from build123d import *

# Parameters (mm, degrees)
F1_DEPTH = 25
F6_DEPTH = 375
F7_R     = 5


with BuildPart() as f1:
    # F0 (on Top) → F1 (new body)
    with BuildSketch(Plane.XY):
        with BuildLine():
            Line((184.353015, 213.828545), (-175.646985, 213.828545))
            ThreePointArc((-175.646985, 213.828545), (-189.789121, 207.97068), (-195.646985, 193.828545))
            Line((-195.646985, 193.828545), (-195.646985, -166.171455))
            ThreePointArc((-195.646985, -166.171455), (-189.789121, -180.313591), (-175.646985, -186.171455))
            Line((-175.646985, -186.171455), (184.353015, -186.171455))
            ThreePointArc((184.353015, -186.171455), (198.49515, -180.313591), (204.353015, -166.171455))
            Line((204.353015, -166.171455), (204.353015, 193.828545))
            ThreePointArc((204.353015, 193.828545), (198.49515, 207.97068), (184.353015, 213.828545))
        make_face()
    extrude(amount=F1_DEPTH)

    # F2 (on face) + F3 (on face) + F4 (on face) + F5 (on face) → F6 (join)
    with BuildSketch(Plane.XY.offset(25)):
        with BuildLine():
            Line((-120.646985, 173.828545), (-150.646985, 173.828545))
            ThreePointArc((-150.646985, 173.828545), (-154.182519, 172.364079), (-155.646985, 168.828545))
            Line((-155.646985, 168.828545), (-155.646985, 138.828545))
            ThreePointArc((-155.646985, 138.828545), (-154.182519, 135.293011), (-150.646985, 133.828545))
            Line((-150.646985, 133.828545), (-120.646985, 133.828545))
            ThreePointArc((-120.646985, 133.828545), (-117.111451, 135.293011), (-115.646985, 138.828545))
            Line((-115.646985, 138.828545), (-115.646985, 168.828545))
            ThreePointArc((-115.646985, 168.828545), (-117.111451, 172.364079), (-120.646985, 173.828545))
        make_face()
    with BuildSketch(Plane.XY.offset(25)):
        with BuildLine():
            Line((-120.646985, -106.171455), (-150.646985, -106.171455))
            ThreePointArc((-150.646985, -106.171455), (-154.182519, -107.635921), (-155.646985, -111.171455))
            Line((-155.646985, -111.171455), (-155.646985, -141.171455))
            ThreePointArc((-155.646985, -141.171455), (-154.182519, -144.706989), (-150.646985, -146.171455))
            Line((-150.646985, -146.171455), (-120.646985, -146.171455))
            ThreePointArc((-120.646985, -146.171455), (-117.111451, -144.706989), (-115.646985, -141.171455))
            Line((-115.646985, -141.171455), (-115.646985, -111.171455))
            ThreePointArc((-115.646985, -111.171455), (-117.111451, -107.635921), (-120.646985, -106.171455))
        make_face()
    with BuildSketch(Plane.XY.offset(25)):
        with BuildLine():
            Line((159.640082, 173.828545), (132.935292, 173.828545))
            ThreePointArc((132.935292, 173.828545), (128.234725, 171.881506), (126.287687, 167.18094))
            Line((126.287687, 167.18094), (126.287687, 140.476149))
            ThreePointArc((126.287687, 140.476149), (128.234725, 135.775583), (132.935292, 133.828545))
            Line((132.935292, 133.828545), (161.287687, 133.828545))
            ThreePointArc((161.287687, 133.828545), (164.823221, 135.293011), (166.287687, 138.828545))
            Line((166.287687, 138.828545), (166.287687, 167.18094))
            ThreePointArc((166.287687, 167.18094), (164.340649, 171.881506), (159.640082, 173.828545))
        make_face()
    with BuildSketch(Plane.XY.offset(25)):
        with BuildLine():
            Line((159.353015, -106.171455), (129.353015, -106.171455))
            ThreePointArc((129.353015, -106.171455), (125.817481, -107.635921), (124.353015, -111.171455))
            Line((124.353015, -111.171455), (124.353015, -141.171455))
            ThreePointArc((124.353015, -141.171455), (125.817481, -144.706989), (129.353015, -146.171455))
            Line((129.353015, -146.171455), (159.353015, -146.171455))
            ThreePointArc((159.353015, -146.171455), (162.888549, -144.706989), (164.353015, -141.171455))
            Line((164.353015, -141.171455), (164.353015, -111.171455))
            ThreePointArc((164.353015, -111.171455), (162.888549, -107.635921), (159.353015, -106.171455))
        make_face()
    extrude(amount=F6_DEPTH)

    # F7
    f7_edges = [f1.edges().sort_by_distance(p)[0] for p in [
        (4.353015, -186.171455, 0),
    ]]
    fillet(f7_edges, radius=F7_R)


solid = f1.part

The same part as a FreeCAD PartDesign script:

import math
import FreeCAD as App
import Part
import Sketcher


def edges_at(feature, points):
    """Names of the edges that pass closest to the given points."""
    edges = feature.Shape.Edges
    near = lambda p: min(range(len(edges)), key=lambda i: edges[i].distToShape(Part.Vertex(*p))[0])
    return sorted({f"Edge{near(p) + 1}" for p in points})

doc = App.newDocument("Part")
params = doc.addObject("Spreadsheet::Sheet", "Params")
for row, (alias, value) in enumerate([
    ("sketch1_radius", "20 mm"),
    ("sketch1_width", "360 mm"),
    ("pad1_length", "25 mm"),
    ("sketch2_radius", "5 mm"),
    ("sketch2_width", "30 mm"),
    ("pad2_length", "375 mm"),
    ("fillet_radius", "5 mm"),
], start=1):
    params.set(f"A{row}", alias)
    params.set(f"B{row}", "=" + value)
    params.setAlias(f"B{row}", alias)

body = doc.addObject("PartDesign::Body", "Body")

# Sketch on XY plane
sketch1 = body.newObject("Sketcher::SketchObject", "Sketch")
sketch1.AttachmentSupport = (doc.getObject("XY_Plane"), [""])
sketch1.MapMode = "FlatFace"
sketch1.addGeometry(Part.LineSegment(App.Vector(184.353015, 213.828545, 0), App.Vector(-175.646985, 213.828545, 0)), False)
sketch1.addGeometry(Part.ArcOfCircle(Part.Circle(App.Vector(-175.646985, 193.828545, 0), App.Vector(0, 0, 1), 20), math.radians(90.000001), math.radians(179.999999)), False)
sketch1.addGeometry(Part.LineSegment(App.Vector(-195.646985, 193.828545, 0), App.Vector(-195.646985, -166.171455, 0)), False)
sketch1.addGeometry(Part.ArcOfCircle(Part.Circle(App.Vector(-175.646986, -166.171456, 0), App.Vector(0, 0, 1), 19.999999), math.radians(179.999996), math.radians(270.000004)), False)
sketch1.addGeometry(Part.LineSegment(App.Vector(-175.646985, -186.171455, 0), App.Vector(184.353015, -186.171455, 0)), False)
sketch1.addGeometry(Part.ArcOfCircle(Part.Circle(App.Vector(184.353015, -166.171455, 0), App.Vector(0, 0, 1), 20), math.radians(-89.999999), math.radians(-0.000001)), False)
sketch1.addGeometry(Part.LineSegment(App.Vector(204.353015, -166.171455, 0), App.Vector(204.353015, 193.828545, 0)), False)
sketch1.addGeometry(Part.ArcOfCircle(Part.Circle(App.Vector(184.353013, 193.828543, 0), App.Vector(0, 0, 1), 20.000002), math.radians(0.000006), math.radians(89.999994)), False)
sketch1.addConstraint(Sketcher.Constraint("Tangent", 0, 2, 1, 1))
sketch1.addConstraint(Sketcher.Constraint("Tangent", 1, 2, 2, 1))
sketch1.addConstraint(Sketcher.Constraint("Tangent", 2, 2, 3, 1))
sketch1.addConstraint(Sketcher.Constraint("Tangent", 3, 2, 4, 1))
sketch1.addConstraint(Sketcher.Constraint("Tangent", 4, 2, 5, 1))
sketch1.addConstraint(Sketcher.Constraint("Tangent", 5, 2, 6, 1))
sketch1.addConstraint(Sketcher.Constraint("Tangent", 6, 2, 7, 1))
sketch1.addConstraint(Sketcher.Constraint("Tangent", 7, 2, 0, 1))
sketch1.addConstraint(Sketcher.Constraint("Horizontal", 0))
sketch1.addConstraint(Sketcher.Constraint("Vertical", 2))
sketch1.addConstraint(Sketcher.Constraint("Horizontal", 4))
sketch1.addConstraint(Sketcher.Constraint("Vertical", 6))
sketch1.addConstraint(Sketcher.Constraint("Equal", 1, 3))
sketch1.addConstraint(Sketcher.Constraint("Equal", 3, 5))
sketch1.addConstraint(Sketcher.Constraint("Equal", 5, 7))
sketch1.addConstraint(Sketcher.Constraint("Equal", 4, 2))
sketch1.addConstraint(Sketcher.Constraint("Radius", 1, 20.0))
sketch1.addConstraint(Sketcher.Constraint("DistanceX", 0, 2, 0, 1, 360.0))
sketch1.addConstraint(Sketcher.Constraint("DistanceX", 1, 3, -1, 1, 175.646985))
sketch1.addConstraint(Sketcher.Constraint("DistanceY", -1, 1, 1, 3, 193.828545))
sketch1.setExpression("Constraints[16]", "Params.sketch1_radius")
sketch1.setExpression("Constraints[17]", "Params.sketch1_width")
pad1 = body.newObject("PartDesign::Pad", "Pad")
pad1.Profile = sketch1
pad1.setExpression("Length", "Params.pad1_length")

# Sketch on XY plane
sketch2 = body.newObject("Sketcher::SketchObject", "Sketch001")
sketch2.AttachmentSupport = (doc.getObject("XY_Plane"), [""])
sketch2.MapMode = "FlatFace"
sketch2.AttachmentOffset = App.Placement(App.Vector(0, 0, 25), App.Rotation())
sketch2.addGeometry(Part.LineSegment(App.Vector(-120.646985, 173.828545, 0), App.Vector(-150.646985, 173.828545, 0)), False)
sketch2.addGeometry(Part.ArcOfCircle(Part.Circle(App.Vector(-150.646985, 168.828545, 0), App.Vector(0, 0, 1), 5), math.radians(89.999996), math.radians(180.000004)), False)
sketch2.addGeometry(Part.LineSegment(App.Vector(-155.646985, 168.828545, 0), App.Vector(-155.646985, 138.828545, 0)), False)
sketch2.addGeometry(Part.ArcOfCircle(Part.Circle(App.Vector(-150.646985, 138.828545, 0), App.Vector(0, 0, 1), 5), math.radians(179.999996), math.radians(270.000004)), False)
sketch2.addGeometry(Part.LineSegment(App.Vector(-150.646985, 133.828545, 0), App.Vector(-120.646985, 133.828545, 0)), False)
sketch2.addGeometry(Part.ArcOfCircle(Part.Circle(App.Vector(-120.646985, 138.828545, 0), App.Vector(0, 0, 1), 5), math.radians(-90.000004), math.radians(0.000004)), False)
sketch2.addGeometry(Part.LineSegment(App.Vector(-115.646985, 138.828545, 0), App.Vector(-115.646985, 168.828545, 0)), False)
sketch2.addGeometry(Part.ArcOfCircle(Part.Circle(App.Vector(-120.646985, 168.828545, 0), App.Vector(0, 0, 1), 5), math.radians(-0.000004), math.radians(90.000004)), False)
sketch2.addGeometry(Part.LineSegment(App.Vector(-120.646985, -106.171455, 0), App.Vector(-150.646985, -106.171455, 0)), False)
sketch2.addGeometry(Part.ArcOfCircle(Part.Circle(App.Vector(-150.646985, -111.171455, 0), App.Vector(0, 0, 1), 5), math.radians(89.999996), math.radians(180.000004)), False)
sketch2.addGeometry(Part.LineSegment(App.Vector(-155.646985, -111.171455, 0), App.Vector(-155.646985, -141.171455, 0)), False)
sketch2.addGeometry(Part.ArcOfCircle(Part.Circle(App.Vector(-150.646985, -141.171455, 0), App.Vector(0, 0, 1), 5), math.radians(179.999996), math.radians(270.000004)), False)
sketch2.addGeometry(Part.LineSegment(App.Vector(-150.646985, -146.171455, 0), App.Vector(-120.646985, -146.171455, 0)), False)
sketch2.addGeometry(Part.ArcOfCircle(Part.Circle(App.Vector(-120.646985, -141.171455, 0), App.Vector(0, 0, 1), 5), math.radians(-90.000004), math.radians(0.000004)), False)
sketch2.addGeometry(Part.LineSegment(App.Vector(-115.646985, -141.171455, 0), App.Vector(-115.646985, -111.171455, 0)), False)
sketch2.addGeometry(Part.ArcOfCircle(Part.Circle(App.Vector(-120.646985, -111.171455, 0), App.Vector(0, 0, 1), 5), math.radians(-0.000004), math.radians(90.000004)), False)
sketch2.addGeometry(Part.LineSegment(App.Vector(159.640082, 173.828545, 0), App.Vector(132.935292, 173.828545, 0)), False)
sketch2.addGeometry(Part.ArcOfCircle(Part.Circle(App.Vector(132.935292, 167.18094, 0), App.Vector(0, 0, 1), 6.647605), math.radians(90.000002), math.radians(179.999998)), False)
sketch2.addGeometry(Part.LineSegment(App.Vector(126.287687, 167.18094, 0), App.Vector(126.287687, 140.476149, 0)), False)
sketch2.addGeometry(Part.ArcOfCircle(Part.Circle(App.Vector(132.935291, 140.476149, 0), App.Vector(0, 0, 1), 6.647604), math.radians(179.999996), math.radians(270.000013)), False)
sketch2.addGeometry(Part.LineSegment(App.Vector(132.935292, 133.828545, 0), App.Vector(161.287687, 133.828545, 0)), False)
sketch2.addGeometry(Part.ArcOfCircle(Part.Circle(App.Vector(161.287687, 138.828545, 0), App.Vector(0, 0, 1), 5), math.radians(-90.000004), math.radians(0.000004)), False)
sketch2.addGeometry(Part.LineSegment(App.Vector(166.287687, 138.828545, 0), App.Vector(166.287687, 167.18094, 0)), False)
sketch2.addGeometry(Part.ArcOfCircle(Part.Circle(App.Vector(159.640082, 167.18094, 0), App.Vector(0, 0, 1), 6.647605), math.radians(0.000002), math.radians(89.999998)), False)
sketch2.addGeometry(Part.LineSegment(App.Vector(159.353015, -106.171455, 0), App.Vector(129.353015, -106.171455, 0)), False)
sketch2.addGeometry(Part.ArcOfCircle(Part.Circle(App.Vector(129.353015, -111.171455, 0), App.Vector(0, 0, 1), 5), math.radians(89.999996), math.radians(180.000004)), False)
sketch2.addGeometry(Part.LineSegment(App.Vector(124.353015, -111.171455, 0), App.Vector(124.353015, -141.171455, 0)), False)
sketch2.addGeometry(Part.ArcOfCircle(Part.Circle(App.Vector(129.353015, -141.171455, 0), App.Vector(0, 0, 1), 5), math.radians(179.999996), math.radians(270.000004)), False)
sketch2.addGeometry(Part.LineSegment(App.Vector(129.353015, -146.171455, 0), App.Vector(159.353015, -146.171455, 0)), False)
sketch2.addGeometry(Part.ArcOfCircle(Part.Circle(App.Vector(159.353015, -141.171455, 0), App.Vector(0, 0, 1), 5), math.radians(-90.000004), math.radians(0.000004)), False)
sketch2.addGeometry(Part.LineSegment(App.Vector(164.353015, -141.171455, 0), App.Vector(164.353015, -111.171455, 0)), False)
sketch2.addGeometry(Part.ArcOfCircle(Part.Circle(App.Vector(159.353015, -111.171455, 0), App.Vector(0, 0, 1), 5), math.radians(-0.000004), math.radians(90.000004)), False)
sketch2.addConstraint(Sketcher.Constraint("Tangent", 0, 2, 1, 1))
sketch2.addConstraint(Sketcher.Constraint("Tangent", 1, 2, 2, 1))
sketch2.addConstraint(Sketcher.Constraint("Tangent", 2, 2, 3, 1))
sketch2.addConstraint(Sketcher.Constraint("Tangent", 3, 2, 4, 1))
sketch2.addConstraint(Sketcher.Constraint("Tangent", 4, 2, 5, 1))
sketch2.addConstraint(Sketcher.Constraint("Tangent", 5, 2, 6, 1))
sketch2.addConstraint(Sketcher.Constraint("Tangent", 6, 2, 7, 1))
sketch2.addConstraint(Sketcher.Constraint("Tangent", 7, 2, 0, 1))
sketch2.addConstraint(Sketcher.Constraint("Tangent", 8, 2, 9, 1))
sketch2.addConstraint(Sketcher.Constraint("Tangent", 9, 2, 10, 1))
sketch2.addConstraint(Sketcher.Constraint("Tangent", 10, 2, 11, 1))
sketch2.addConstraint(Sketcher.Constraint("Tangent", 11, 2, 12, 1))
sketch2.addConstraint(Sketcher.Constraint("Tangent", 12, 2, 13, 1))
sketch2.addConstraint(Sketcher.Constraint("Tangent", 13, 2, 14, 1))
sketch2.addConstraint(Sketcher.Constraint("Tangent", 14, 2, 15, 1))
sketch2.addConstraint(Sketcher.Constraint("Tangent", 15, 2, 8, 1))
sketch2.addConstraint(Sketcher.Constraint("Tangent", 16, 2, 17, 1))
sketch2.addConstraint(Sketcher.Constraint("Tangent", 17, 2, 18, 1))
sketch2.addConstraint(Sketcher.Constraint("Tangent", 18, 2, 19, 1))
sketch2.addConstraint(Sketcher.Constraint("Tangent", 19, 2, 20, 1))
sketch2.addConstraint(Sketcher.Constraint("Tangent", 20, 2, 21, 1))
sketch2.addConstraint(Sketcher.Constraint("Tangent", 21, 2, 22, 1))
sketch2.addConstraint(Sketcher.Constraint("Tangent", 22, 2, 23, 1))
sketch2.addConstraint(Sketcher.Constraint("Tangent", 23, 2, 16, 1))
sketch2.addConstraint(Sketcher.Constraint("Tangent", 24, 2, 25, 1))
sketch2.addConstraint(Sketcher.Constraint("Tangent", 25, 2, 26, 1))
sketch2.addConstraint(Sketcher.Constraint("Tangent", 26, 2, 27, 1))
sketch2.addConstraint(Sketcher.Constraint("Tangent", 27, 2, 28, 1))
sketch2.addConstraint(Sketcher.Constraint("Tangent", 28, 2, 29, 1))
sketch2.addConstraint(Sketcher.Constraint("Tangent", 29, 2, 30, 1))
sketch2.addConstraint(Sketcher.Constraint("Tangent", 30, 2, 31, 1))
sketch2.addConstraint(Sketcher.Constraint("Tangent", 31, 2, 24, 1))
sketch2.addConstraint(Sketcher.Constraint("Horizontal", 0))
sketch2.addConstraint(Sketcher.Constraint("Vertical", 2))
sketch2.addConstraint(Sketcher.Constraint("Horizontal", 4))
sketch2.addConstraint(Sketcher.Constraint("Vertical", 6))
sketch2.addConstraint(Sketcher.Constraint("Horizontal", 8))
sketch2.addConstraint(Sketcher.Constraint("Vertical", 10))
sketch2.addConstraint(Sketcher.Constraint("Horizontal", 12))
sketch2.addConstraint(Sketcher.Constraint("Vertical", 14))
sketch2.addConstraint(Sketcher.Constraint("Horizontal", 16))
sketch2.addConstraint(Sketcher.Constraint("Vertical", 18))
sketch2.addConstraint(Sketcher.Constraint("Horizontal", 20))
sketch2.addConstraint(Sketcher.Constraint("Vertical", 22))
sketch2.addConstraint(Sketcher.Constraint("Horizontal", 24))
sketch2.addConstraint(Sketcher.Constraint("Vertical", 26))
sketch2.addConstraint(Sketcher.Constraint("Horizontal", 28))
sketch2.addConstraint(Sketcher.Constraint("Vertical", 30))
sketch2.addConstraint(Sketcher.Constraint("Equal", 1, 3))
sketch2.addConstraint(Sketcher.Constraint("Equal", 3, 5))
sketch2.addConstraint(Sketcher.Constraint("Equal", 5, 7))
sketch2.addConstraint(Sketcher.Constraint("Equal", 7, 9))
sketch2.addConstraint(Sketcher.Constraint("Equal", 9, 11))
sketch2.addConstraint(Sketcher.Constraint("Equal", 11, 13))
sketch2.addConstraint(Sketcher.Constraint("Equal", 13, 15))
sketch2.addConstraint(Sketcher.Constraint("Equal", 17, 19))
sketch2.addConstraint(Sketcher.Constraint("Equal", 15, 21))
sketch2.addConstraint(Sketcher.Constraint("Equal", 19, 23))
sketch2.addConstraint(Sketcher.Constraint("Equal", 21, 25))
sketch2.addConstraint(Sketcher.Constraint("Equal", 25, 27))
sketch2.addConstraint(Sketcher.Constraint("Equal", 27, 29))
sketch2.addConstraint(Sketcher.Constraint("Equal", 29, 31))
sketch2.addConstraint(Sketcher.Constraint("Horizontal", 5, 3, 21, 3))
sketch2.addConstraint(Sketcher.Constraint("Horizontal", 15, 3, 25, 3))
sketch2.addConstraint(Sketcher.Constraint("Horizontal", 13, 3, 27, 3))
sketch2.addConstraint(Sketcher.Constraint("Horizontal", 7, 2, 16, 2))
sketch2.addConstraint(Sketcher.Constraint("Vertical", 3, 3, 9, 3))
sketch2.addConstraint(Sketcher.Constraint("Vertical", 7, 3, 13, 3))
sketch2.addConstraint(Sketcher.Constraint("Equal", 12, 24))
sketch2.addConstraint(Sketcher.Constraint("Equal", 28, 2))
sketch2.addConstraint(Sketcher.Constraint("Equal", 6, 10))
sketch2.addConstraint(Sketcher.Constraint("Equal", 16, 18))
sketch2.addConstraint(Sketcher.Constraint("Radius", 1, 5.0))
sketch2.addConstraint(Sketcher.Constraint("DistanceX", 0, 2, 0, 1, 30.0))
sketch2.addConstraint(Sketcher.Constraint("DistanceY", 9, 3, 3, 3, 249.999999))
sketch2.addConstraint(Sketcher.Constraint("DistanceX", 15, 3, 25, 3, 249.999999))
sketch2.addConstraint(Sketcher.Constraint("Radius", 17, 6.647605))
sketch2.addConstraint(Sketcher.Constraint("DistanceY", -1, 1, 17, 3, 167.18094))
sketch2.addConstraint(Sketcher.Constraint("DistanceX", -1, 1, 19, 3, 132.935291))
sketch2.addConstraint(Sketcher.Constraint("DistanceX", 5, 3, 21, 3, 281.934672))
sketch2.setExpression("Constraints[72]", "Params.sketch2_radius")
sketch2.setExpression("Constraints[73]", "Params.sketch2_width")
pad2 = body.newObject("PartDesign::Pad", "Pad001")
pad2.Profile = sketch2
pad2.setExpression("Length", "Params.pad2_length")
doc.recompute()

fillet = body.newObject("PartDesign::Fillet", "Fillet")
fillet.Base = (pad2, edges_at(pad2, [(4.353, -186.171, 0)]))
fillet.setExpression("Radius", "Params.fillet_radius")

doc.recompute()
